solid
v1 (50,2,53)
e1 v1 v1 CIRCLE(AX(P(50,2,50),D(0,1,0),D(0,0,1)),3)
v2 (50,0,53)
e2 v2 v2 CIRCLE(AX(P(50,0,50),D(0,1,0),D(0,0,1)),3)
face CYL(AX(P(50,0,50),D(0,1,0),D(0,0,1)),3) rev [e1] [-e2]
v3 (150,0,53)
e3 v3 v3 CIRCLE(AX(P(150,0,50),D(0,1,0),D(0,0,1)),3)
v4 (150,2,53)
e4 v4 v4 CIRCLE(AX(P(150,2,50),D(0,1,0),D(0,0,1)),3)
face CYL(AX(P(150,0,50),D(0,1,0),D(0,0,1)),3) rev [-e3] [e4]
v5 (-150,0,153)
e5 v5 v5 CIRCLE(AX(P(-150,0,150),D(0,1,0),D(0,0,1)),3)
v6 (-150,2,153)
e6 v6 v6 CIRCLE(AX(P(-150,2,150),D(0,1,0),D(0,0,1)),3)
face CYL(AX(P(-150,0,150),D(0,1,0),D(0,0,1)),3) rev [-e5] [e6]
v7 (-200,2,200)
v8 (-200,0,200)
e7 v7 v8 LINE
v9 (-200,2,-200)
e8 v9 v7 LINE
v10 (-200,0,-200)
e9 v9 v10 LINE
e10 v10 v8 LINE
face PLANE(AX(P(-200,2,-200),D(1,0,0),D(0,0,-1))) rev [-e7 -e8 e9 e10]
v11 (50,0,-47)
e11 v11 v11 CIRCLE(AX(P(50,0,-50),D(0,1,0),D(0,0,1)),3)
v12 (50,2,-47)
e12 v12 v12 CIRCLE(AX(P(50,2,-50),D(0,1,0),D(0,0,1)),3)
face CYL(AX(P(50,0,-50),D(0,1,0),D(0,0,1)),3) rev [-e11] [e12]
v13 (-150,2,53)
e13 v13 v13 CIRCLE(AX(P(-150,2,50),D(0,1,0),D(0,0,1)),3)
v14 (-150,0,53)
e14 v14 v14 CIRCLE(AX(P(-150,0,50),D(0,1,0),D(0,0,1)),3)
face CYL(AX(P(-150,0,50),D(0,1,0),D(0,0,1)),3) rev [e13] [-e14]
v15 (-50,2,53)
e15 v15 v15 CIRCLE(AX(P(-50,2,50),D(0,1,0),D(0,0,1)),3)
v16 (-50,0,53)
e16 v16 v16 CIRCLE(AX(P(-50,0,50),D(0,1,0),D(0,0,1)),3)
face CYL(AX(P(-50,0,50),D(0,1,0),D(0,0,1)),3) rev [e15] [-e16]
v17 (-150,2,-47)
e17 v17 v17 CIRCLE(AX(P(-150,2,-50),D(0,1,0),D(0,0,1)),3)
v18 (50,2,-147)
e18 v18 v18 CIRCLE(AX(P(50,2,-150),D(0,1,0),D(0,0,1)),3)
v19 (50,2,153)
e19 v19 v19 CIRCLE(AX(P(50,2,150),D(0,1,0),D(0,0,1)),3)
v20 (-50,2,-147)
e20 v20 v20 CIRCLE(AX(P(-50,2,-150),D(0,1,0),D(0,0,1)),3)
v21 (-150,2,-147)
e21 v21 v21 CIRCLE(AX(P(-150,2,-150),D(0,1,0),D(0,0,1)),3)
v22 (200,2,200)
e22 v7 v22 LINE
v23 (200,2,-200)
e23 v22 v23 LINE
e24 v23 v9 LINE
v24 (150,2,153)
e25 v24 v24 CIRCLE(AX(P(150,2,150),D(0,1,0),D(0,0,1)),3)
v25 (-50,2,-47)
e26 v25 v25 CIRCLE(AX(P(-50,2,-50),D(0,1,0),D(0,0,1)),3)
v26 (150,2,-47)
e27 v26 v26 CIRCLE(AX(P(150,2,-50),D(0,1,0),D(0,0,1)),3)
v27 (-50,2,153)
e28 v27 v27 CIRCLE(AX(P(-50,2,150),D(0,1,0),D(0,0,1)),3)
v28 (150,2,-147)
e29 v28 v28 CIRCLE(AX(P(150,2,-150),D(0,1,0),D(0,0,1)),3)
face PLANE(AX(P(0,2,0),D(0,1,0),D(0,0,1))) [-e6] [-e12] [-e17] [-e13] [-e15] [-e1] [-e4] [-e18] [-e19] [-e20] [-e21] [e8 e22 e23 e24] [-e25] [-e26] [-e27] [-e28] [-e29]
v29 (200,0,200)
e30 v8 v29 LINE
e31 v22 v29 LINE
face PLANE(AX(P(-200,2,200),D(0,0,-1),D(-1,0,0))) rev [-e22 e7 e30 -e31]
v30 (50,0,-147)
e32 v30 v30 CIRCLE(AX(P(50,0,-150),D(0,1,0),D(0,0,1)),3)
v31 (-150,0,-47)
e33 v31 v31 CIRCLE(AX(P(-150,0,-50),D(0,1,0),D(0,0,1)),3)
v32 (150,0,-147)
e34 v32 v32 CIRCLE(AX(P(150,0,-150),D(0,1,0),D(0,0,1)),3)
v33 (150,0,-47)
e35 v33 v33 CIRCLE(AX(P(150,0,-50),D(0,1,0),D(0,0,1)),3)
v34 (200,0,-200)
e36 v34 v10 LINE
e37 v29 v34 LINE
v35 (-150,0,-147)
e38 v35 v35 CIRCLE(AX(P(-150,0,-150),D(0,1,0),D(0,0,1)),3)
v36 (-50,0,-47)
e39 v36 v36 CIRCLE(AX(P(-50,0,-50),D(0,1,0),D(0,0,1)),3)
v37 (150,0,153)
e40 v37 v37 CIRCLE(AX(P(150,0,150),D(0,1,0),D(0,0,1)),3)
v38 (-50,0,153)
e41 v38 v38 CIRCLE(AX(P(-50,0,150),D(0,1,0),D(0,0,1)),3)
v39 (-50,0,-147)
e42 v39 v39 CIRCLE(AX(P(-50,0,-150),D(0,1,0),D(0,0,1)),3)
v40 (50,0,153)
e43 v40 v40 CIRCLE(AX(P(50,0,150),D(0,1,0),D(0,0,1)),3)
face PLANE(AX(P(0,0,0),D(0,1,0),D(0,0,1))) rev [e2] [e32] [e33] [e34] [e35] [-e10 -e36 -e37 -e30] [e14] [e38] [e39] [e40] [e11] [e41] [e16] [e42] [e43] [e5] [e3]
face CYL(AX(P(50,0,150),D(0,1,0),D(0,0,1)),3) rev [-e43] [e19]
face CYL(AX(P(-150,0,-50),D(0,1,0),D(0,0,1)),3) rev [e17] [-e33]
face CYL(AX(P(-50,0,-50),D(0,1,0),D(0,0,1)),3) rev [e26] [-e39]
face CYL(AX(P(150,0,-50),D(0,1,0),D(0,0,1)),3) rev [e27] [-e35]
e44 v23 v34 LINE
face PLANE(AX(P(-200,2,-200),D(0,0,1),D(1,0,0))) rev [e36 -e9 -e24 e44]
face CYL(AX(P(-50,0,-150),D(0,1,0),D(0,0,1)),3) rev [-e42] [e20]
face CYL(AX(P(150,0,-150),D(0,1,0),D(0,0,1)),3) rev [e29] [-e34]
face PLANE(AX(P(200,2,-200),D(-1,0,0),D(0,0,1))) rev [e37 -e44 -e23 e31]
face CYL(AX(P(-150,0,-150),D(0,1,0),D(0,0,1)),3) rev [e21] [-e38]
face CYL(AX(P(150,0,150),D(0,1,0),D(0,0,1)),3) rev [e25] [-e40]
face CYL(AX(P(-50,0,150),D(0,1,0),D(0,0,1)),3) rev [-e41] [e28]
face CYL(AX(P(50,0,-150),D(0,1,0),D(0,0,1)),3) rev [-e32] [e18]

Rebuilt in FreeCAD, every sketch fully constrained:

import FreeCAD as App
import Part
import Sketcher

V = App.Vector
Q = App.Units.Quantity

doc = App.newDocument("Part")
params = doc.addObject("Spreadsheet::Sheet", "Params")
for row, (alias, value) in enumerate([
    ("sketch1_width", "400 mm"),
    ("pad1_length", "2 mm"),
    ("sketch2_diameter", "6 mm"),
], start=1):
    params.set(f"A{row}", alias)
    params.set(f"B{row}", "=" + value)
    params.setAlias(f"B{row}", alias)

body = doc.addObject("PartDesign::Body", "Body")

# Sketch on XZ plane
sketch1 = doc.addObject("Sketcher::SketchObject", "Sketch")
body.addObject(sketch1)
sketch1.AttachmentSupport = (doc.XZ_Plane, [""])
sketch1.MapMode = "FlatFace"
sketch1.addGeometry(Part.LineSegment(V(-200, -200, 0), V(-200, 200, 0)), False)
sketch1.addGeometry(Part.LineSegment(V(-200, 200, 0), V(200, 200, 0)), False)
sketch1.addGeometry(Part.LineSegment(V(200, 200, 0), V(200, -200, 0)), False)
sketch1.addGeometry(Part.LineSegment(V(200, -200, 0), V(-200, -200, 0)), False)
sketch1.addConstraint(Sketcher.Constraint("Coincident", 0, 2, 1, 1))
sketch1.addConstraint(Sketcher.Constraint("Coincident", 1, 2, 2, 1))
sketch1.addConstraint(Sketcher.Constraint("Coincident", 2, 2, 3, 1))
sketch1.addConstraint(Sketcher.Constraint("Coincident", 3, 2, 0, 1))
sketch1.addConstraint(Sketcher.Constraint("Vertical", 0))
sketch1.addConstraint(Sketcher.Constraint("Horizontal", 1))
sketch1.addConstraint(Sketcher.Constraint("Vertical", 2))
sketch1.addConstraint(Sketcher.Constraint("Horizontal", 3))
sketch1.addConstraint(Sketcher.Constraint("Symmetric", 0, 2, 2, 2, -1, 1))
sketch1.addConstraint(Sketcher.Constraint("Equal", 3, 0))
sketch1.addConstraint(Sketcher.Constraint("DistanceX", 1, 1, 1, 2, Q("400 mm")))
sketch1.setExpression("Constraints[10]", "Params.sketch1_width")
pad1 = doc.addObject("PartDesign::Pad", "Pad")
body.addObject(pad1)
pad1.Profile = sketch1
pad1.setExpression("Length", "Params.pad1_length")
pad1.Reversed = True

# Sketch on XZ plane
sketch2 = doc.addObject("Sketcher::SketchObject", "Sketch001")
body.addObject(sketch2)
sketch2.AttachmentSupport = (doc.XZ_Plane, [""])
sketch2.MapMode = "FlatFace"
sketch2.AttachmentOffset = App.Placement(V(0, 0, -2), App.Rotation())
sketch2.addGeometry(Part.Circle(V(-150, -150, 0), V(0, 0, 1), 3), False)
sketch2.addGeometry(Part.Circle(V(-50, -150, 0), V(0, 0, 1), 3), False)
sketch2.addGeometry(Part.Circle(V(50, -150, 0), V(0, 0, 1), 3), False)
sketch2.addGeometry(Part.Circle(V(150, -150, 0), V(0, 0, 1), 3), False)
sketch2.addGeometry(Part.Circle(V(-50, -50, 0), V(0, 0, 1), 3), False)
sketch2.addGeometry(Part.Circle(V(50, -50, 0), V(0, 0, 1), 3), False)
sketch2.addGeometry(Part.Circle(V(150, -50, 0), V(0, 0, 1), 3), False)
sketch2.addGeometry(Part.Circle(V(-50, 50, 0), V(0, 0, 1), 3), False)
sketch2.addGeometry(Part.Circle(V(50, 50, 0), V(0, 0, 1), 3), False)
sketch2.addGeometry(Part.Circle(V(150, 50, 0), V(0, 0, 1), 3), False)
sketch2.addGeometry(Part.Circle(V(-50, 150, 0), V(0, 0, 1), 3), False)
sketch2.addGeometry(Part.Circle(V(50, 150, 0), V(0, 0, 1), 3), False)
sketch2.addGeometry(Part.Circle(V(150, 150, 0), V(0, 0, 1), 3), False)
sketch2.addGeometry(Part.Circle(V(-150, -50, 0), V(0, 0, 1), 3), False)
sketch2.addGeometry(Part.Circle(V(-150, 50, 0), V(0, 0, 1), 3), False)
sketch2.addGeometry(Part.Circle(V(-150, 150, 0), V(0, 0, 1), 3), False)
sketch2.addConstraint(Sketcher.Constraint("Equal", 0, 1))
sketch2.addConstraint(Sketcher.Constraint("Equal", 1, 2))
sketch2.addConstraint(Sketcher.Constraint("Equal", 2, 3))
sketch2.addConstraint(Sketcher.Constraint("Equal", 3, 4))
sketch2.addConstraint(Sketcher.Constraint("Equal", 4, 5))
sketch2.addConstraint(Sketcher.Constraint("Equal", 5, 6))
sketch2.addConstraint(Sketcher.Constraint("Equal", 6, 7))
sketch2.addConstraint(Sketcher.Constraint("Equal", 7, 8))
sketch2.addConstraint(Sketcher.Constraint("Equal", 8, 9))
sketch2.addConstraint(Sketcher.Constraint("Equal", 9, 10))
sketch2.addConstraint(Sketcher.Constraint("Equal", 10, 11))
sketch2.addConstraint(Sketcher.Constraint("Equal", 11, 12))
sketch2.addConstraint(Sketcher.Constraint("Equal", 12, 13))
sketch2.addConstraint(Sketcher.Constraint("Equal", 13, 14))
sketch2.addConstraint(Sketcher.Constraint("Equal", 14, 15))
sketch2.addConstraint(Sketcher.Constraint("Symmetric", 5, 3, 7, 3, -1, 1))
sketch2.addConstraint(Sketcher.Constraint("Symmetric", 4, 3, 8, 3, -1, 1))
sketch2.addConstraint(Sketcher.Constraint("Symmetric", 2, 3, 10, 3, -1, 1))
sketch2.addConstraint(Sketcher.Constraint("Symmetric", 1, 3, 11, 3, -1, 1))
sketch2.addConstraint(Sketcher.Constraint("Symmetric", 0, 3, 12, 3, -1, 1))
sketch2.addConstraint(Sketcher.Constraint("Symmetric", 9, 3, 13, 3, -1, 1))
sketch2.addConstraint(Sketcher.Constraint("Symmetric", 6, 3, 14, 3, -1, 1))
sketch2.addConstraint(Sketcher.Constraint("Symmetric", 3, 3, 15, 3, -1, 1))
sketch2.addConstraint(Sketcher.Constraint("Symmetric", 1, 3, 2, 3, -2))
sketch2.addConstraint(Sketcher.Constraint("Symmetric", 0, 3, 3, 3, -2))
sketch2.addConstraint(Sketcher.Constraint("Symmetric", 4, 3, 5, 3, -2))
sketch2.addConstraint(Sketcher.Constraint("Symmetric", 6, 3, 13, 3, -2))
sketch2.addConstraint(Sketcher.Constraint("Horizontal", 0, 3, 1, 3))
sketch2.addConstraint(Sketcher.Constraint("Horizontal", 5, 3, 6, 3))
sketch2.addConstraint(Sketcher.Constraint("Vertical", 1, 3, 4, 3))
sketch2.addConstraint(Sketcher.Constraint("Vertical", 3, 3, 6, 3))
sketch2.addConstraint(Sketcher.Constraint("Diameter", 0, Q("6 mm")))
sketch2.addConstraint(Sketcher.Constraint("DistanceX", 0, 3, -1, 1, Q("150 mm")))
sketch2.addConstraint(Sketcher.Constraint("DistanceY", 0, 3, -1, 1, Q("150 mm")))
sketch2.addConstraint(Sketcher.Constraint("DistanceX", 1, 3, -1, 1, Q("50 mm")))
sketch2.addConstraint(Sketcher.Constraint("DistanceY", 4, 3, -1, 1, Q("50 mm")))
sketch2.setExpression("Constraints[31]", "Params.sketch2_diameter")
pocket1 = doc.addObject("PartDesign::Pocket", "Pocket")
body.addObject(pocket1)
pocket1.Profile = sketch2
pocket1.Type = "ThroughAll"
pocket1.Reversed = True

doc.recompute()
